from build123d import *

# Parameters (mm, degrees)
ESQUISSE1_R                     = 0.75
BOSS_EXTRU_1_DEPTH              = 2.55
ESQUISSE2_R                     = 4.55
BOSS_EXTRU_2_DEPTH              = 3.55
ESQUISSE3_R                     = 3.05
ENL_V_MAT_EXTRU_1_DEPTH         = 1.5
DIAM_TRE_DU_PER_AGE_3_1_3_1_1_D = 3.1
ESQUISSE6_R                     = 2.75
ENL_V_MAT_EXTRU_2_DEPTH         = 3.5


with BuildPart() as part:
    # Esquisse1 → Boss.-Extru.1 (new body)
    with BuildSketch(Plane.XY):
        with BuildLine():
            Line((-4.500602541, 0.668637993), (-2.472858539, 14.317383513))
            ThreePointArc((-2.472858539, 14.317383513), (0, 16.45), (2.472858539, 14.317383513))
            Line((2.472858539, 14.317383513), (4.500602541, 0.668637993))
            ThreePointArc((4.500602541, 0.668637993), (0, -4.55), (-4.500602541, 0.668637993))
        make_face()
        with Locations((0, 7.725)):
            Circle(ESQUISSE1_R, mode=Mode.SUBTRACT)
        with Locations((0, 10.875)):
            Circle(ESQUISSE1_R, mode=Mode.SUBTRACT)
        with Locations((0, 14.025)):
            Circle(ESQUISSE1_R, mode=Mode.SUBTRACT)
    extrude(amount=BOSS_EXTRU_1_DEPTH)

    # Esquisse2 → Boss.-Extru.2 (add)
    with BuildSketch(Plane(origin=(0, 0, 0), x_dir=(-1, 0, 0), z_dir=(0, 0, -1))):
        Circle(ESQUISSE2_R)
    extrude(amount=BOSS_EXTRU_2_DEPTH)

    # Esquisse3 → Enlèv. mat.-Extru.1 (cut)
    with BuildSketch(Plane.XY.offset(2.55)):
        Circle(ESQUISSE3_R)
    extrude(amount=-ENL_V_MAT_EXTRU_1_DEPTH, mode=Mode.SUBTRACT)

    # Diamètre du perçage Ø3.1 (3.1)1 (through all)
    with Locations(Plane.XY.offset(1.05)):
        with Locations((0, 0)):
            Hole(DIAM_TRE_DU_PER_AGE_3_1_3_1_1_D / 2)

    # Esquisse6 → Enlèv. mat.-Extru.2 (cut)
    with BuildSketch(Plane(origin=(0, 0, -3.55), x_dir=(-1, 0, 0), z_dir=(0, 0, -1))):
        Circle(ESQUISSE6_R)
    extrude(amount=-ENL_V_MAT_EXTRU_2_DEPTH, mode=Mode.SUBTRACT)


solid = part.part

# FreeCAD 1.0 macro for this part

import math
import FreeCAD as App
import Part
import Sketcher
from FreeCAD import Vector

doc = App.newDocument("Part")
body = doc.addObject("PartDesign::Body", "Body")

# Sketch on XY plane
sketch1 = body.newObject("Sketcher::SketchObject", "Sketch")
sketch1.AttachmentSupport = (doc.getObject("XY_Plane"), [""])
sketch1.MapMode = "FlatFace"
sketch1.addGeometry([
    Part.LineSegment(Vector(-2.5, 14.3, 0), Vector(-4.5, 0.7, 0)),  # 0
    Part.ArcOfCircle(Part.Circle(Vector(0, 0, 0), Vector(0, 0, 1), 4.5), math.radians(172), math.radians(368)),  # 1
    Part.LineSegment(Vector(4.5, 0.7, 0), Vector(2.5, 14.3, 0)),  # 2
    Part.ArcOfCircle(Part.Circle(Vector(0, 13.9, 0), Vector(0, 0, 1), 2.5), math.radians(8), math.radians(172)),  # 3
    Part.Circle(Vector(0, 7.7, 0), Vector(0, 0, 1), 0.8),  # 4
    Part.Circle(Vector(0, 10.9, 0), Vector(0, 0, 1), 0.8),  # 5
    Part.Circle(Vector(0, 14, 0), Vector(0, 0, 1), 0.8),  # 6
], False)
sketch1.addConstraint([
    Sketcher.Constraint("Tangent", 0, 2, 1, 1),
    Sketcher.Constraint("Tangent", 1, 2, 2, 1),
    Sketcher.Constraint("Tangent", 2, 2, 3, 1),
    Sketcher.Constraint("Tangent", 3, 2, 0, 1),
    Sketcher.Constraint("Coincident", 1, 3, -1, 1),
    Sketcher.Constraint("Equal", 4, 5),
    Sketcher.Constraint("Equal", 5, 6),
    Sketcher.Constraint("PointOnObject", 3, 3, -2),
    Sketcher.Constraint("PointOnObject", 4, 3, -2),
    Sketcher.Constraint("PointOnObject", 5, 3, -2),
    Sketcher.Constraint("PointOnObject", 6, 3, -2),
    Sketcher.Constraint("Diameter", 4, 1.5),
    Sketcher.Constraint("Radius", 3, 2.5),
    Sketcher.Constraint("Radius", 1, 4.55),
    Sketcher.Constraint("DistanceY", 4, 3, 6, 3, 6.3),
    Sketcher.Constraint("DistanceY", -1, 1, 3, 3, 13.95),
    Sketcher.Constraint("DistanceY", 4, 3, 5, 3, 3.15),
    Sketcher.Constraint("DistanceY", -1, 1, 4, 3, 7.725),
])
pad1 = body.newObject("PartDesign::Pad", "Pad")
pad1.Profile = sketch1
pad1.Length = 2.55

# Sketch on XY plane
sketch2 = body.newObject("Sketcher::SketchObject", "Sketch001")
sketch2.AttachmentSupport = (doc.getObject("XY_Plane"), [""])
sketch2.MapMode = "FlatFace"
sketch2.addGeometry(Part.Circle(Vector(0, 0, 0), Vector(0, 0, 1), 4.5), False)
sketch2.addConstraint([
    Sketcher.Constraint("Coincident", 0, 3, -1, 1),
    Sketcher.Constraint("Diameter", 0, 9.1),
])
pad2 = body.newObject("PartDesign::Pad", "Pad001")
pad2.Profile = sketch2
pad2.Length = 3.55
pad2.Reversed = True

# Sketch on XY plane
sketch3 = body.newObject("Sketcher::SketchObject", "Sketch002")
sketch3.AttachmentSupport = (doc.getObject("XY_Plane"), [""])
sketch3.MapMode = "FlatFace"
sketch3.AttachmentOffset = App.Placement(Vector(0, 0, 2.55), App.Rotation())
sketch3.addGeometry(Part.Circle(Vector(0, 0, 0), Vector(0, 0, 1), 3), False)
sketch3.addConstraint([
    Sketcher.Constraint("Coincident", 0, 3, -1, 1),
    Sketcher.Constraint("Diameter", 0, 6.1),
])
pocket1 = body.newObject("PartDesign::Pocket", "Pocket")
pocket1.Profile = sketch3
pocket1.Length = 1.5

# Sketch on XY plane
sketch4 = body.newObject("Sketcher::SketchObject", "Sketch003")
sketch4.AttachmentSupport = (doc.getObject("XY_Plane"), [""])
sketch4.MapMode = "FlatFace"
sketch4.AttachmentOffset = App.Placement(Vector(0, 0, 1.05), App.Rotation())
sketch4.addGeometry(Part.Circle(Vector(0, 0, 0), Vector(0, 0, 1), 1.6), False)
sketch4.addConstraint([
    Sketcher.Constraint("Coincident", 0, 3, -1, 1),
    Sketcher.Constraint("Diameter", 0, 3.1),
])
doc.recompute()
hole = body.newObject("PartDesign::Hole", "Hole")
hole.Profile = sketch4
hole.ThreadType = "None"
hole.Diameter = 3.1
hole.DepthType = "ThroughAll"

# Sketch on XY plane
sketch5 = body.newObject("Sketcher::SketchObject", "Sketch004")
sketch5.AttachmentSupport = (doc.getObject("XY_Plane"), [""])
sketch5.MapMode = "FlatFace"
sketch5.AttachmentOffset = App.Placement(Vector(0, 0, -3.55), App.Rotation())
sketch5.addGeometry(Part.Circle(Vector(0, 0, 0), Vector(0, 0, 1), 2.8), False)
sketch5.addConstraint([
    Sketcher.Constraint("Coincident", 0, 3, -1, 1),
    Sketcher.Constraint("Diameter", 0, 5.5),
])
pocket2 = body.newObject("PartDesign::Pocket", "Pocket001")
pocket2.Profile = sketch5
pocket2.Length = 3.5
pocket2.Reversed = True

doc.recompute()
